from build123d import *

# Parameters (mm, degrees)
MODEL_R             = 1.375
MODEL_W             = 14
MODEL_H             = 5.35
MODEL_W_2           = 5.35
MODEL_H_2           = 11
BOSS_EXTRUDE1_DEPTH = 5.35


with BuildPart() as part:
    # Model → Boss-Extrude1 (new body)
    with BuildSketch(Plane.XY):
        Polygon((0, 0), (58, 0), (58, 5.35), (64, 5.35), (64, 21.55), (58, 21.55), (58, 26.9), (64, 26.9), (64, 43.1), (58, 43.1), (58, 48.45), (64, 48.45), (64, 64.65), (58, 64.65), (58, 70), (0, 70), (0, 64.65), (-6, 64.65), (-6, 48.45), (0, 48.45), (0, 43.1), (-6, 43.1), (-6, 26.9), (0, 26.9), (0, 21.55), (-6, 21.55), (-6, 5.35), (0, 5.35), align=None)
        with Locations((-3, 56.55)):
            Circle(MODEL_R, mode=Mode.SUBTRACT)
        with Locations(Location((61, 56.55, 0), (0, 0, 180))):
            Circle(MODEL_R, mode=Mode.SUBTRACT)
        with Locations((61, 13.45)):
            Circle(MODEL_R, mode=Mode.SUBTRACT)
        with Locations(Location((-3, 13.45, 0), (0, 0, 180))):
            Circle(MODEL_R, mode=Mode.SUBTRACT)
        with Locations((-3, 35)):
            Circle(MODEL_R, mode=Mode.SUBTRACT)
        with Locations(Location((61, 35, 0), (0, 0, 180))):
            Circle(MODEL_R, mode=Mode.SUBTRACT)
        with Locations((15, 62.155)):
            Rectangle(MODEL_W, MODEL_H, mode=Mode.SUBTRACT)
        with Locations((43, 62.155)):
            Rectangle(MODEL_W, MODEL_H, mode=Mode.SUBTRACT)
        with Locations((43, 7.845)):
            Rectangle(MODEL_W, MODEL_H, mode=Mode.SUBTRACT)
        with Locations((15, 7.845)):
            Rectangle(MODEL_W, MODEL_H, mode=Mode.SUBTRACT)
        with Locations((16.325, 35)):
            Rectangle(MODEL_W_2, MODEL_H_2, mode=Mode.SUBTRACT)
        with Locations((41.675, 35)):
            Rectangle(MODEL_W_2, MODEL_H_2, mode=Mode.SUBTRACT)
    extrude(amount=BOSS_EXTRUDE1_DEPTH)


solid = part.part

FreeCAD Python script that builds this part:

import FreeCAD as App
import Part
import Sketcher
from FreeCAD import Vector

doc = App.newDocument("Part")
body = doc.addObject("PartDesign::Body", "Body")

sketch1 = body.newObject("Sketcher::SketchObject", "Sketch")
sketch1.AttachmentSupport = (doc.getObject("XY_Plane"), [""])
sketch1.MapMode = "FlatFace"
sketch1.addGeometry([
    Part.LineSegment(Vector(0, 0, 0), Vector(58, 0, 0)),
    Part.LineSegment(Vector(58, 0, 0), Vector(58, 5.3, 0)),
    Part.LineSegment(Vector(58, 5.3, 0), Vector(64, 5.3, 0)),
    Part.LineSegment(Vector(64, 5.3, 0), Vector(64, 21.6, 0)),
    Part.LineSegment(Vector(64, 21.6, 0), Vector(58, 21.6, 0)),
    Part.LineSegment(Vector(58, 21.6, 0), Vector(58, 26.9, 0)),
    Part.LineSegment(Vector(58, 26.9, 0), Vector(64, 26.9, 0)),
    Part.LineSegment(Vector(64, 26.9, 0), Vector(64, 43.1, 0)),
    Part.LineSegment(Vector(64, 43.1, 0), Vector(58, 43.1, 0)),
    Part.LineSegment(Vector(58, 43.1, 0), Vector(58, 48.5, 0)),
    Part.LineSegment(Vector(58, 48.5, 0), Vector(64, 48.5, 0)),
    Part.LineSegment(Vector(64, 48.5, 0), Vector(64, 64.7, 0)),
    Part.LineSegment(Vector(64, 64.7, 0), Vector(58, 64.7, 0)),
    Part.LineSegment(Vector(58, 64.7, 0), Vector(58, 70, 0)),
    Part.LineSegment(Vector(58, 70, 0), Vector(0, 70, 0)),
    Part.LineSegment(Vector(0, 70, 0), Vector(0, 64.7, 0)),
    Part.LineSegment(Vector(0, 64.7, 0), Vector(-6, 64.7, 0)),
    Part.LineSegment(Vector(-6, 64.7, 0), Vector(-6, 48.5, 0)),
    Part.LineSegment(Vector(-6, 48.5, 0), Vector(0, 48.5, 0)),
    Part.LineSegment(Vector(0, 48.5, 0), Vector(0, 43.1, 0)),
    Part.LineSegment(Vector(0, 43.1, 0), Vector(-6, 43.1, 0)),
    Part.LineSegment(Vector(-6, 43.1, 0), Vector(-6, 26.9, 0)),
    Part.LineSegment(Vector(-6, 26.9, 0), Vector(0, 26.9, 0)),
    Part.LineSegment(Vector(0, 26.9, 0), Vector(0, 21.6, 0)),
    Part.LineSegment(Vector(0, 21.6, 0), Vector(-6, 21.6, 0)),
    Part.LineSegment(Vector(-6, 21.6, 0), Vector(-6, 5.3, 0)),
    Part.LineSegment(Vector(-6, 5.3, 0), Vector(0, 5.3, 0)),
    Part.LineSegment(Vector(0, 5.3, 0), Vector(0, 0, 0)),
    Part.Circle(Vector(-3, 13.4, 0), Vector(0, 0, 1), 1.4),
    Part.LineSegment(Vector(22, 5.2, 0), Vector(8, 5.2, 0)),
    Part.LineSegment(Vector(8, 5.2, 0), Vector(8, 10.5, 0)),
    Part.LineSegment(Vector(8, 10.5, 0), Vector(22, 10.5, 0)),
    Part.LineSegment(Vector(22, 10.5, 0), Vector(22, 5.2, 0)),
    Part.LineSegment(Vector(50, 5.2, 0), Vector(36, 5.2, 0)),
    Part.LineSegment(Vector(36, 5.2, 0), Vector(36, 10.5, 0)),
    Part.LineSegment(Vector(36, 10.5, 0), Vector(50, 10.5, 0)),
    Part.LineSegment(Vector(50, 10.5, 0), Vector(50, 5.2, 0)),
    Part.Circle(Vector(61, 13.4, 0), Vector(0, 0, 1), 1.4),
    Part.Circle(Vector(-3, 35, 0), Vector(0, 0, 1), 1.4),
    Part.LineSegment(Vector(19, 29.5, 0), Vector(13.7, 29.5, 0)),
    Part.LineSegment(Vector(13.7, 29.5, 0), Vector(13.7, 40.5, 0)),
    Part.LineSegment(Vector(13.7, 40.5, 0), Vector(19, 40.5, 0)),
    Part.LineSegment(Vector(19, 40.5, 0), Vector(19, 29.5, 0)),
    Part.Circle(Vector(-3, 56.5, 0), Vector(0, 0, 1), 1.4),
    Part.LineSegment(Vector(22, 59.5, 0), Vector(8, 59.5, 0)),
    Part.LineSegment(Vector(8, 59.5, 0), Vector(8, 64.8, 0)),
    Part.LineSegment(Vector(8, 64.8, 0), Vector(22, 64.8, 0)),
    Part.LineSegment(Vector(22, 64.8, 0), Vector(22, 59.5, 0)),
    Part.LineSegment(Vector(44.4, 29.5, 0), Vector(39, 29.5, 0)),
    Part.LineSegment(Vector(39, 29.5, 0), Vector(39, 40.5, 0)),
    Part.LineSegment(Vector(39, 40.5, 0), Vector(44.4, 40.5, 0)),
    Part.LineSegment(Vector(44.4, 40.5, 0), Vector(44.4, 29.5, 0)),
    Part.Circle(Vector(61, 35, 0), Vector(0, 0, 1), 1.4),
    Part.LineSegment(Vector(50, 59.5, 0), Vector(36, 59.5, 0)),
    Part.LineSegment(Vector(36, 59.5, 0), Vector(36, 64.8, 0)),
    Part.LineSegment(Vector(36, 64.8, 0), Vector(50, 64.8, 0)),
    Part.LineSegment(Vector(50, 64.8, 0), Vector(50, 59.5, 0)),
    Part.Circle(Vector(61, 56.5, 0), Vector(0, 0, 1), 1.4),
], False)
sketch1.addConstraint([
    Sketcher.Constraint("Coincident", 0, 2, 1, 1),
    Sketcher.Constraint("Coincident", 1, 2, 2, 1),
    Sketcher.Constraint("Coincident", 2, 2, 3, 1),
    Sketcher.Constraint("Coincident", 3, 2, 4, 1),
    Sketcher.Constraint("Coincident", 4, 2, 5, 1),
    Sketcher.Constraint("Coincident", 5, 2, 6, 1),
    Sketcher.Constraint("Coincident", 6, 2, 7, 1),
    Sketcher.Constraint("Coincident", 7, 2, 8, 1),
    Sketcher.Constraint("Coincident", 8, 2, 9, 1),
    Sketcher.Constraint("Coincident", 9, 2, 10, 1),
    Sketcher.Constraint("Coincident", 10, 2, 11, 1),
    Sketcher.Constraint("Coincident", 11, 2, 12, 1),
    Sketcher.Constraint("Coincident", 12, 2, 13, 1),
    Sketcher.Constraint("Coincident", 13, 2, 14, 1),
    Sketcher.Constraint("Coincident", 14, 2, 15, 1),
    Sketcher.Constraint("Coincident", 15, 2, 16, 1),
    Sketcher.Constraint("Coincident", 16, 2, 17, 1),
    Sketcher.Constraint("Coincident", 17, 2, 18, 1),
    Sketcher.Constraint("Coincident", 18, 2, 19, 1),
    Sketcher.Constraint("Coincident", 19, 2, 20, 1),
    Sketcher.Constraint("Coincident", 20, 2, 21, 1),
    Sketcher.Constraint("Coincident", 21, 2, 22, 1),
    Sketcher.Constraint("Coincident", 22, 2, 23, 1),
    Sketcher.Constraint("Coincident", 23, 2, 24, 1),
    Sketcher.Constraint("Coincident", 24, 2, 25, 1),
    Sketcher.Constraint("Coincident", 25, 2, 26, 1),
    Sketcher.Constraint("Coincident", 26, 2, 27, 1),
    Sketcher.Constraint("Coincident", 27, 2, 0, 1),
    Sketcher.Constraint("Coincident", 29, 2, 30, 1),
    Sketcher.Constraint("Coincident", 30, 2, 31, 1),
    Sketcher.Constraint("Coincident", 31, 2, 32, 1),
    Sketcher.Constraint("Coincident", 32, 2, 29, 1),
    Sketcher.Constraint("Coincident", 33, 2, 34, 1),
    Sketcher.Constraint("Coincident", 34, 2, 35, 1),
    Sketcher.Constraint("Coincident", 35, 2, 36, 1),
    Sketcher.Constraint("Coincident", 36, 2, 33, 1),
    Sketcher.Constraint("Coincident", 39, 2, 40, 1),
    Sketcher.Constraint("Coincident", 40, 2, 41, 1),
    Sketcher.Constraint("Coincident", 41, 2, 42, 1),
    Sketcher.Constraint("Coincident", 42, 2, 39, 1),
    Sketcher.Constraint("Coincident", 44, 2, 45, 1),
    Sketcher.Constraint("Coincident", 45, 2, 46, 1),
    Sketcher.Constraint("Coincident", 46, 2, 47, 1),
    Sketcher.Constraint("Coincident", 47, 2, 44, 1),
    Sketcher.Constraint("Coincident", 48, 2, 49, 1),
    Sketcher.Constraint("Coincident", 49, 2, 50, 1),
    Sketcher.Constraint("Coincident", 50, 2, 51, 1),
    Sketcher.Constraint("Coincident", 51, 2, 48, 1),
    Sketcher.Constraint("Coincident", 53, 2, 54, 1),
    Sketcher.Constraint("Coincident", 54, 2, 55, 1),
    Sketcher.Constraint("Coincident", 55, 2, 56, 1),
    Sketcher.Constraint("Coincident", 56, 2, 53, 1),
    Sketcher.Constraint("Horizontal", 0),
    Sketcher.Constraint("Vertical", 1),
    Sketcher.Constraint("Horizontal", 2),
    Sketcher.Constraint("Vertical", 3),
    Sketcher.Constraint("Horizontal", 4),
    Sketcher.Constraint("Vertical", 5),
    Sketcher.Constraint("Horizontal", 6),
    Sketcher.Constraint("Vertical", 7),
    Sketcher.Constraint("Horizontal", 8),
    Sketcher.Constraint("Vertical", 9),
    Sketcher.Constraint("Horizontal", 10),
    Sketcher.Constraint("Vertical", 11),
    Sketcher.Constraint("Horizontal", 12),
    Sketcher.Constraint("Vertical", 13),
    Sketcher.Constraint("Horizontal", 14),
    Sketcher.Constraint("Vertical", 15),
    Sketcher.Constraint("Horizontal", 16),
    Sketcher.Constraint("Vertical", 17),
    Sketcher.Constraint("Horizontal", 18),
    Sketcher.Constraint("Vertical", 19),
    Sketcher.Constraint("Horizontal", 20),
    Sketcher.Constraint("Vertical", 21),
    Sketcher.Constraint("Horizontal", 22),
    Sketcher.Constraint("Vertical", 23),
    Sketcher.Constraint("Horizontal", 24),
    Sketcher.Constraint("Vertical", 25),
    Sketcher.Constraint("Horizontal", 26),
    Sketcher.Constraint("Vertical", 27),
    Sketcher.Constraint("Horizontal", 29),
    Sketcher.Constraint("Vertical", 30),
    Sketcher.Constraint("Horizontal", 31),
    Sketcher.Constraint("Vertical", 32),
    Sketcher.Constraint("Horizontal", 33),
    Sketcher.Constraint("Vertical", 34),
    Sketcher.Constraint("Horizontal", 35),
    Sketcher.Constraint("Vertical", 36),
    Sketcher.Constraint("Horizontal", 39),
    Sketcher.Constraint("Vertical", 40),
    Sketcher.Constraint("Horizontal", 41),
    Sketcher.Constraint("Vertical", 42),
    Sketcher.Constraint("Horizontal", 44),
    Sketcher.Constraint("Vertical", 45),
    Sketcher.Constraint("Horizontal", 46),
    Sketcher.Constraint("Vertical", 47),
    Sketcher.Constraint("Horizontal", 48),
    Sketcher.Constraint("Vertical", 49),
    Sketcher.Constraint("Horizontal", 50),
    Sketcher.Constraint("Vertical", 51),
    Sketcher.Constraint("Horizontal", 53),
    Sketcher.Constraint("Vertical", 54),
    Sketcher.Constraint("Horizontal", 55),
    Sketcher.Constraint("Vertical", 56),
    Sketcher.Constraint("Coincident", 27, 2, -1, 1),
    Sketcher.Constraint("Equal", 28, 37),
    Sketcher.Constraint("Equal", 37, 38),
    Sketcher.Constraint("Equal", 38, 43),
    Sketcher.Constraint("Equal", 43, 52),
    Sketcher.Constraint("Equal", 52, 57),
    Sketcher.Constraint("PointOnObject", 14, 2, -2),
    Sketcher.Constraint("PointOnObject", 18, 2, -2),
    Sketcher.Constraint("PointOnObject", 22, 2, -2),
    Sketcher.Constraint("Horizontal", 28, 3, 37, 3),
    Sketcher.Constraint("Horizontal", 38, 3, 52, 3),
    Sketcher.Constraint("Horizontal", 43, 3, 57, 3),
    Sketcher.Constraint("Horizontal", 12, 2, 15, 2),
    Sketcher.Constraint("Horizontal", 10, 2, 17, 2),
    Sketcher.Constraint("Horizontal", 8, 2, 19, 2),
    Sketcher.Constraint("Horizontal", 6, 2, 21, 2),
    Sketcher.Constraint("Horizontal", 4, 2, 23, 2),
    Sketcher.Constraint("Horizontal", 2, 2, 25, 2),
    Sketcher.Constraint("Horizontal", 32, 2, 33, 2),
    Sketcher.Constraint("Horizontal", 31, 2, 34, 2),
    Sketcher.Constraint("Horizontal", 42, 2, 48, 2),
    Sketcher.Constraint("Horizontal", 41, 2, 49, 2),
    Sketcher.Constraint("Horizontal", 47, 2, 53, 2),
    Sketcher.Constraint("Horizontal", 46, 2, 54, 2),
    Sketcher.Constraint("Vertical", 28, 3, 38, 3),
    Sketcher.Constraint("Vertical", 38, 3, 43, 3),
    Sketcher.Constraint("Vertical", 37, 3, 52, 3),
    Sketcher.Constraint("Vertical", 52, 3, 57, 3),
    Sketcher.Constraint("Vertical", 1, 2, 4, 2),
    Sketcher.Constraint("Vertical", 3, 2, 6, 2),
    Sketcher.Constraint("Vertical", 5, 2, 8, 2),
    Sketcher.Constraint("Vertical", 7, 2, 10, 2),
    Sketcher.Constraint("Vertical", 9, 2, 12, 2),
    Sketcher.Constraint("Vertical", 17, 2, 20, 2),
    Sketcher.Constraint("Vertical", 21, 2, 24, 2),
    Sketcher.Constraint("Vertical", 30, 2, 44, 2),
    Sketcher.Constraint("Vertical", 32, 2, 46, 2),
    Sketcher.Constraint("Vertical", 34, 2, 53, 2),
    Sketcher.Constraint("Vertical", 36, 2, 55, 2),
    Sketcher.Constraint("Equal", 12, 16),
    Sketcher.Constraint("Equal", 31, 33),
    Sketcher.Constraint("Equal", 41, 48),
    Sketcher.Constraint("Equal", 50, 1),
    Sketcher.Constraint("Equal", 1, 5),
    Sketcher.Constraint("Equal", 3, 7),
    Sketcher.Constraint("Equal", 5, 9),
    Sketcher.Constraint("Equal", 7, 11),
    Sketcher.Constraint("Equal", 9, 13),
    Sketcher.Constraint("Equal", 27, 30),
    Sketcher.Constraint("Equal", 36, 45),
    Sketcher.Constraint("Diameter", 28, 2.75),
    Sketcher.Constraint("DistanceX", 0, 1, 0, 2, 58.0),
    Sketcher.Constraint("DistanceX", 2, 1, 2, 2, 6.0),
    Sketcher.Constraint("DistanceX", 29, 2, 29, 1, 14.0),
    Sketcher.Constraint("DistanceY", 40, 1, 40, 2, 11.0),
    Sketcher.Constraint("DistanceY", 3, 1, 3, 2, 16.2),
    Sketcher.Constraint("DistanceX", 28, 3, -1, 1, 3.0),
    Sketcher.Constraint("DistanceX", -1, 1, 37, 3, 61.0),
    Sketcher.Constraint("DistanceY", -1, 1, 38, 3, 35.0),
    Sketcher.Constraint("DistanceY", -1, 1, 13, 2, 70.0),
    Sketcher.Constraint("DistanceX", -1, 1, 29, 2, 8.0),
    Sketcher.Constraint("DistanceX", -1, 1, 33, 2, 36.0),
    Sketcher.Constraint("DistanceX", -1, 1, 41, 2, 19.0),
    Sketcher.Constraint("DistanceX", -1, 1, 48, 2, 39.0),
    Sketcher.Constraint("DistanceY", -1, 1, 39, 2, 29.5),
    Sketcher.Constraint("DistanceY", 28, 3, 43, 3, 43.1),
    Sketcher.Constraint("DistanceY", 1, 2, 37, 3, 8.1),
    Sketcher.Constraint("DistanceY", -1, 1, 29, 2, 5.17),
    Sketcher.Constraint("DistanceY", -1, 1, 44, 2, 59.48),
])
pad1 = body.newObject("PartDesign::Pad", "Pad")
pad1.Profile = sketch1
pad1.Length = 5.35

doc.recompute()
